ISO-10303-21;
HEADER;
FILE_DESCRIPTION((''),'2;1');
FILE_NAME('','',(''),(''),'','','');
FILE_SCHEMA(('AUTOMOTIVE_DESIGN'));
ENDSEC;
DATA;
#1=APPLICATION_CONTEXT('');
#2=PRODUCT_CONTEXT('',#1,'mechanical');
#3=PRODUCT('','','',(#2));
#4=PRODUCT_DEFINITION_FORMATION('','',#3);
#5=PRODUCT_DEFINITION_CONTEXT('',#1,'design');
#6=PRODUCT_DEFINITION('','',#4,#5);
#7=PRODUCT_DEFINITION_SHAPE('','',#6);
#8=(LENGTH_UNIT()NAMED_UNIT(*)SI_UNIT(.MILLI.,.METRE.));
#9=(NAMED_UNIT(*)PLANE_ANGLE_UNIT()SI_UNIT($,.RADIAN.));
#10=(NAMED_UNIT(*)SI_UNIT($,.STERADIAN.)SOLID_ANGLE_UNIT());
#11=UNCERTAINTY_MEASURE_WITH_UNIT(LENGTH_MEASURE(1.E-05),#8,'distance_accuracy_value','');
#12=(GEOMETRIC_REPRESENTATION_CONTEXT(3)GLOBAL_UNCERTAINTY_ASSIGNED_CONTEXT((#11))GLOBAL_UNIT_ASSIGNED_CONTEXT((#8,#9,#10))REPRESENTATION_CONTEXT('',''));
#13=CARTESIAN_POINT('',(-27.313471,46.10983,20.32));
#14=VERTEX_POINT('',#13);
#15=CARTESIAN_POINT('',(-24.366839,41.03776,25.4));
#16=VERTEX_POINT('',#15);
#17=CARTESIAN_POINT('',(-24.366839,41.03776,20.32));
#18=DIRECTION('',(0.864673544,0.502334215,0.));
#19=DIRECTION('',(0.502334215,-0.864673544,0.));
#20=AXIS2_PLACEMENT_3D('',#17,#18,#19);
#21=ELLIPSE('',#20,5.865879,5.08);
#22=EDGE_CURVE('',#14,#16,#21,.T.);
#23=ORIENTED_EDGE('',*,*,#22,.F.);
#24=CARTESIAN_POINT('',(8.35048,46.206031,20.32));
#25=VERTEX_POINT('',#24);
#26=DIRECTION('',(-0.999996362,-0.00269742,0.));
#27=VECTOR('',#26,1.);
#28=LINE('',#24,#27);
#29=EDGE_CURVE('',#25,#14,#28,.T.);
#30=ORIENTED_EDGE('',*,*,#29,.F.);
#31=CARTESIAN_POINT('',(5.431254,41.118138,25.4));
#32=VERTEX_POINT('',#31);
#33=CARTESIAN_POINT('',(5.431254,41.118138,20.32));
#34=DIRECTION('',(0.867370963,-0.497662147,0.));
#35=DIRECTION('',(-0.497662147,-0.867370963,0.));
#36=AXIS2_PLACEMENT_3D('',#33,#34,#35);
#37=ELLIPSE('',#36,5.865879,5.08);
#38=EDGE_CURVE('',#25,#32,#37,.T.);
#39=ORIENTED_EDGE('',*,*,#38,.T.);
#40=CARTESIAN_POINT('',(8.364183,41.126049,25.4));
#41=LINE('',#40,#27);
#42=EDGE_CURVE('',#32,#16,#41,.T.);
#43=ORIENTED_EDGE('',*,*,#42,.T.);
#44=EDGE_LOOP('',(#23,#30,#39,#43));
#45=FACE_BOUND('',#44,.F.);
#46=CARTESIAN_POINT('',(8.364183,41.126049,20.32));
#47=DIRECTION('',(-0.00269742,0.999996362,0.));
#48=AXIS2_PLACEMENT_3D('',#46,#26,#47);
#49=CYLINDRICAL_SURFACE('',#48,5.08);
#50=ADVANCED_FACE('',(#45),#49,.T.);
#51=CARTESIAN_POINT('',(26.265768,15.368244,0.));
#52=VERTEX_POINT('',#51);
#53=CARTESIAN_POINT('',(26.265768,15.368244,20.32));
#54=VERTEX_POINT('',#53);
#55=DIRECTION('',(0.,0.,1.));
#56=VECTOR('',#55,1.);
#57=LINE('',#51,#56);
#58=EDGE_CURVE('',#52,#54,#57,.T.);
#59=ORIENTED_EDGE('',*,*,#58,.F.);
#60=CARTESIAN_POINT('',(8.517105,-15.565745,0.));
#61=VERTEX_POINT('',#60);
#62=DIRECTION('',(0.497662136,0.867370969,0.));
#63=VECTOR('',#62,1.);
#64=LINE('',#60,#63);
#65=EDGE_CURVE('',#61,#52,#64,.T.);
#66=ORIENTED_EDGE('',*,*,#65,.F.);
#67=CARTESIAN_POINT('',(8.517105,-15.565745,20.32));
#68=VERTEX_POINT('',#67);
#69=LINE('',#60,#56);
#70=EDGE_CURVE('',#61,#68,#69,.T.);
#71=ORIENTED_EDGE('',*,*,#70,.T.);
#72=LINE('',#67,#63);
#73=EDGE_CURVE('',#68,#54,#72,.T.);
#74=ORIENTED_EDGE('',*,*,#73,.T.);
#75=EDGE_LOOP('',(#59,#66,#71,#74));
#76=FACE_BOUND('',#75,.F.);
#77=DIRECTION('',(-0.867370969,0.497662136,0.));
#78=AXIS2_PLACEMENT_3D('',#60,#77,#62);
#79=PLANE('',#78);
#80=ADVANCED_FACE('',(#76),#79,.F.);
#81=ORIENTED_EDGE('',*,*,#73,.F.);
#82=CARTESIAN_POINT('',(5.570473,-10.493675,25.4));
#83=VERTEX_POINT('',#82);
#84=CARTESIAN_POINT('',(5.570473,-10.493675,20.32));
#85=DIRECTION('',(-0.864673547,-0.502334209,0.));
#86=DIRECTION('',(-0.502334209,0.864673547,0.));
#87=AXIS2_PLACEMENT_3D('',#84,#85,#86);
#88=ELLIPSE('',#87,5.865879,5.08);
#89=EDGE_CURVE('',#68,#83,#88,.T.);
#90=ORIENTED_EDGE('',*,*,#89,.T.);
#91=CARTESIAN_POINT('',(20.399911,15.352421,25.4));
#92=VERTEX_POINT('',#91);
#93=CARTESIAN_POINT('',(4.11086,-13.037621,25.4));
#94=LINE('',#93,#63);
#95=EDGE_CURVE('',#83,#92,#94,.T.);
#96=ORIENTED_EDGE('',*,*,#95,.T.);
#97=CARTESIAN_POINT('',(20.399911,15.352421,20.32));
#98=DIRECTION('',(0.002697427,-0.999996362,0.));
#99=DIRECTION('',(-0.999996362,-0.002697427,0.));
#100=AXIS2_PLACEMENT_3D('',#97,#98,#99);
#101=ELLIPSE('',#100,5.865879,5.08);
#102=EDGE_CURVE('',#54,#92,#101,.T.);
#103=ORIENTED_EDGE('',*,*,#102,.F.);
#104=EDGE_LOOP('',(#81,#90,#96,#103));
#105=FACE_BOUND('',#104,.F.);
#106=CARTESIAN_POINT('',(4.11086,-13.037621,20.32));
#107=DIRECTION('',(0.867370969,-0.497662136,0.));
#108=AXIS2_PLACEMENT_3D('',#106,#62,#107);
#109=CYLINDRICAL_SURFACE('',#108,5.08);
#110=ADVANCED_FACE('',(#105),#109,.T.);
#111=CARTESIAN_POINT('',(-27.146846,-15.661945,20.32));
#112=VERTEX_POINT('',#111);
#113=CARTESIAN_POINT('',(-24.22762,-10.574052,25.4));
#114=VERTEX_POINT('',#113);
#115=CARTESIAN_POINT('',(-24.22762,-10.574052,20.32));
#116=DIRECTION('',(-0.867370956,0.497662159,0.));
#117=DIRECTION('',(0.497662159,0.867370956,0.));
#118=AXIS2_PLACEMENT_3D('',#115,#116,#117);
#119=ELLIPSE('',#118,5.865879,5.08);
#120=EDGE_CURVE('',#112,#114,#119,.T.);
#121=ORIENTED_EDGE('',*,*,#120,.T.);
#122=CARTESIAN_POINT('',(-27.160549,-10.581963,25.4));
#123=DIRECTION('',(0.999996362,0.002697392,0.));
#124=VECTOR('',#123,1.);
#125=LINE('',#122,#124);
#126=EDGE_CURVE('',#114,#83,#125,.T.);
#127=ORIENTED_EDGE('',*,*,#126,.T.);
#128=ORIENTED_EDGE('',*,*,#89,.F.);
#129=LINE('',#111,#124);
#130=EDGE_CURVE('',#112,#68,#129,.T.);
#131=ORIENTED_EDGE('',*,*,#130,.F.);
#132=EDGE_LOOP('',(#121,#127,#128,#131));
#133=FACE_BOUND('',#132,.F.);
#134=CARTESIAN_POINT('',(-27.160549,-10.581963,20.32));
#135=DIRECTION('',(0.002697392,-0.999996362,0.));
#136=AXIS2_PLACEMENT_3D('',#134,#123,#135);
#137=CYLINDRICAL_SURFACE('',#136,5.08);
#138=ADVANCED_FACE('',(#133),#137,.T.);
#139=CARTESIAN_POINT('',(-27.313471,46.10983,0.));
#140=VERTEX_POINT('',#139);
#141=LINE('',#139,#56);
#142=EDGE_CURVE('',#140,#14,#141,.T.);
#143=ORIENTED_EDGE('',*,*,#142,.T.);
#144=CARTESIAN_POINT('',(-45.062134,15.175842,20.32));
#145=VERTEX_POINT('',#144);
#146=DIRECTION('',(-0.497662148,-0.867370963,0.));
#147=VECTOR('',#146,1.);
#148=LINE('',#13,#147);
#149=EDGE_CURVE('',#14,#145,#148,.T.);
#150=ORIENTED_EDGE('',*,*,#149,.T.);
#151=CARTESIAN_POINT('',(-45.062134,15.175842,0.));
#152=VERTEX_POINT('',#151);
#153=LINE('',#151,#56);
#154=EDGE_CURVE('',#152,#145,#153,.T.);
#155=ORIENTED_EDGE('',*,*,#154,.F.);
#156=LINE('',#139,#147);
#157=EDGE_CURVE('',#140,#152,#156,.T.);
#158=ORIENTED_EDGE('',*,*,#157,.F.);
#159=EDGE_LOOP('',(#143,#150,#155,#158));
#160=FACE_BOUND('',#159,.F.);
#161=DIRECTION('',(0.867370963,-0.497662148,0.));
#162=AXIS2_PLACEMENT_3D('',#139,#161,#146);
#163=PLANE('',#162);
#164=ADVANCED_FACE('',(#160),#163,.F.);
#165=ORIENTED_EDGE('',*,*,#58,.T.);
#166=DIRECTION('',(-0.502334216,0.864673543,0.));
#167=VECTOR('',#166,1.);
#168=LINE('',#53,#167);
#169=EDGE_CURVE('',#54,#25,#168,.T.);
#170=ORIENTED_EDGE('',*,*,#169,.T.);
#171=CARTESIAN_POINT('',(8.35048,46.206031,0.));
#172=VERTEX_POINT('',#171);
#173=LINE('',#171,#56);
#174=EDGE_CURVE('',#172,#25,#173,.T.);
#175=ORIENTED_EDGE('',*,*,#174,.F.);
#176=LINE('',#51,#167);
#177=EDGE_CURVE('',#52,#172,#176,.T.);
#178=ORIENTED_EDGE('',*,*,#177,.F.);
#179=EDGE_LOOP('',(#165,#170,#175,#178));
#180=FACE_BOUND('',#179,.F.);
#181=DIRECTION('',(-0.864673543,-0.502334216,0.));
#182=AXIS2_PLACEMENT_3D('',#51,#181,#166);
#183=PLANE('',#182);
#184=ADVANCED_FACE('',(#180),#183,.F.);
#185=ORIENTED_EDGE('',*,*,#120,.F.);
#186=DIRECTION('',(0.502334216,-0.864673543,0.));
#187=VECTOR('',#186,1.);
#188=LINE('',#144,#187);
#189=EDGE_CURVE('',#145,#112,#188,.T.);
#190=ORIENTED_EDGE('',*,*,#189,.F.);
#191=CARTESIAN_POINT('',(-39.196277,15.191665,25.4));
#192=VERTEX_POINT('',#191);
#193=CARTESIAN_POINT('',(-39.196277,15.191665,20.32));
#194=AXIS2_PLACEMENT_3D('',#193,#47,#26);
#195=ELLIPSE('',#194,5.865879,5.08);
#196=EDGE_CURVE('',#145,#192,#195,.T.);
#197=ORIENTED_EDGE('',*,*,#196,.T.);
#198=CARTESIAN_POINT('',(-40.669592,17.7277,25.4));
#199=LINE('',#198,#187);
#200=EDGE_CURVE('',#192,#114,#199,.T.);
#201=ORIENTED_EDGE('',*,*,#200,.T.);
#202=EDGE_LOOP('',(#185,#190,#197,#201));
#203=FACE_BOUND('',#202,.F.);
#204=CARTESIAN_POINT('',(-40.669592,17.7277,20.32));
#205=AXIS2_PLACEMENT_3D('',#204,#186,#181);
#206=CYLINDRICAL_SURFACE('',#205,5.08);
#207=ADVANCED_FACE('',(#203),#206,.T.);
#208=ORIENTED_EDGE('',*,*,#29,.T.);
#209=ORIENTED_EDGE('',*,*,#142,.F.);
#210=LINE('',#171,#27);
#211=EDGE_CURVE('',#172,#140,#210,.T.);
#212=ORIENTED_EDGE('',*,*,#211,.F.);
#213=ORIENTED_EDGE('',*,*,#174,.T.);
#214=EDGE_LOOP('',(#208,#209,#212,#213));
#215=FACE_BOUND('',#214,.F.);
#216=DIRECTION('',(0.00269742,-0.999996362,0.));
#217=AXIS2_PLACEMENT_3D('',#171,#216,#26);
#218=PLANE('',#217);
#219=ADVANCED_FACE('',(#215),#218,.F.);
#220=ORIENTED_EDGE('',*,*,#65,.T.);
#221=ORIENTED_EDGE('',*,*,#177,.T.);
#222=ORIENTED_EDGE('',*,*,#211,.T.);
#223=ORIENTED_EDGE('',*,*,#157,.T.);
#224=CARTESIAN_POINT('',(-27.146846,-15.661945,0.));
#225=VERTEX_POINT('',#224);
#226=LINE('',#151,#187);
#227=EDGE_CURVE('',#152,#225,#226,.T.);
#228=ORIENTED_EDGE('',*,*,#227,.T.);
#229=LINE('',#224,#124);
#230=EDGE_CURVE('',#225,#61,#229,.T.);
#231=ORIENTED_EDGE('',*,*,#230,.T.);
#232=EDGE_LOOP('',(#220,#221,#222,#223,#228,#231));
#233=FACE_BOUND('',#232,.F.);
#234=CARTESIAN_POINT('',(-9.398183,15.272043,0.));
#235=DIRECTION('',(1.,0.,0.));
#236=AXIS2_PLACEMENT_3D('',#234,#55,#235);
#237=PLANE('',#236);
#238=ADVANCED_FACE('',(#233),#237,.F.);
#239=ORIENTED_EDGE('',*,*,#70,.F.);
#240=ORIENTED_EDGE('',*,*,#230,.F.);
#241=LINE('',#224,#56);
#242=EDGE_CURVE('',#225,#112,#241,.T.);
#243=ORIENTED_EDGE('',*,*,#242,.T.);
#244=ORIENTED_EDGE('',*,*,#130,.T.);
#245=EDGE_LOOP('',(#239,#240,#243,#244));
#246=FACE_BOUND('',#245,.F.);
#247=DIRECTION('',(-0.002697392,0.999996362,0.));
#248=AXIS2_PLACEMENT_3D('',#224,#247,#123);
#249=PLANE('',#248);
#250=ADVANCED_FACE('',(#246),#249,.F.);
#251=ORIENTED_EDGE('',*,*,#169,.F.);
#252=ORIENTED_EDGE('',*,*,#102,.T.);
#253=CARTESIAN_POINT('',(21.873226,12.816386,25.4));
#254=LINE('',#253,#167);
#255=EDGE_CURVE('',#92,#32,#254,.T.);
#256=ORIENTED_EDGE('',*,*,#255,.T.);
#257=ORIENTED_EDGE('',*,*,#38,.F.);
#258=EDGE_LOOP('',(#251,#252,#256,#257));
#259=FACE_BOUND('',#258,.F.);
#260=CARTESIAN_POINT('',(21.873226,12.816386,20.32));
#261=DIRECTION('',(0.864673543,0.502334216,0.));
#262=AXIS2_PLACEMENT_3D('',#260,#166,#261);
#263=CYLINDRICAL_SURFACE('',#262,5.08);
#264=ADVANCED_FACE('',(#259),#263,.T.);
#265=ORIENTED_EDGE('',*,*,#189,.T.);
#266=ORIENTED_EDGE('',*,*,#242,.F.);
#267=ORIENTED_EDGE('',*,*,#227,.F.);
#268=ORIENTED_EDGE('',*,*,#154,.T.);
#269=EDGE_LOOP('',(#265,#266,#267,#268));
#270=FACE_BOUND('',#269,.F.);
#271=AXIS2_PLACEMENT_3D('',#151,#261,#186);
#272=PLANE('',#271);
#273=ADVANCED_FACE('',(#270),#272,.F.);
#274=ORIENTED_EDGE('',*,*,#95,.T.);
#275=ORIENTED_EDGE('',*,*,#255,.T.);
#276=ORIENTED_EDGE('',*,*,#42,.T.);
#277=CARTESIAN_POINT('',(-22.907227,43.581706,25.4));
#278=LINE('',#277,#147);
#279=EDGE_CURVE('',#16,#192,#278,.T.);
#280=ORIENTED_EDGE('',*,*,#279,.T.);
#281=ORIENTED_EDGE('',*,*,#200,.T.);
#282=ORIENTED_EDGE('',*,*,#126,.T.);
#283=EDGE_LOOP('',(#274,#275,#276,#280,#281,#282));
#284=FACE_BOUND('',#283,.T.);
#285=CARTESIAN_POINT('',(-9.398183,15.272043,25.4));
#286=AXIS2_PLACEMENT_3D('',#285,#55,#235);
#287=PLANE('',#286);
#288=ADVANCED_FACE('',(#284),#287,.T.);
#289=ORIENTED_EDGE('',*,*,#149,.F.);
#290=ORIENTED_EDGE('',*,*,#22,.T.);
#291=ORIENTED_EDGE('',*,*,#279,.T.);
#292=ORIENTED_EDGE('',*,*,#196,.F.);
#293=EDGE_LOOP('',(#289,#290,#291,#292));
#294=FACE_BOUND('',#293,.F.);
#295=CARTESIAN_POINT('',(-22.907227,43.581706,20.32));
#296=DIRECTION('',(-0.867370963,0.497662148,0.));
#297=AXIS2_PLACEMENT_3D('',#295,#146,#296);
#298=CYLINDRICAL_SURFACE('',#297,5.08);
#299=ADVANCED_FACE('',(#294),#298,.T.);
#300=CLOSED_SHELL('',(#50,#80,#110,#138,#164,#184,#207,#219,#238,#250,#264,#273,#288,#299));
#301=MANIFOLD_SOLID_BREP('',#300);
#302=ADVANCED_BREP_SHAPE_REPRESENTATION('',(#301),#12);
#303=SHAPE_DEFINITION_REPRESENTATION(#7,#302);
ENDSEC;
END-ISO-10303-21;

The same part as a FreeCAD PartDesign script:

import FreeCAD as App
import Part
import Sketcher
Q = App.Units.Quantity


def edges_at(feature, points):
    """Names of the edges that pass closest to the given points."""
    edges = feature.Shape.Edges
    near = lambda p: min(range(len(edges)), key=lambda i: edges[i].distToShape(Part.Vertex(*p))[0])
    return sorted({f"Edge{near(p) + 1}" for p in points})

doc = App.newDocument("Part")
body = doc.addObject("PartDesign::Body", "Body")

# Sketch on XY plane
sketch1 = doc.addObject("Sketcher::SketchObject", "Sketch")
body.addObject(sketch1)
sketch1.AttachmentSupport = (doc.XY_Plane, [""])
sketch1.MapMode = "FlatFace"
sketch1.addGeometry(Part.LineSegment(App.Vector(-27.146846, -15.661945, 0), App.Vector(8.517105, -15.565745, 0)), False)
sketch1.addGeometry(Part.LineSegment(App.Vector(8.517105, -15.565745, 0), App.Vector(26.265768, 15.368244, 0)), False)
sketch1.addGeometry(Part.LineSegment(App.Vector(26.265768, 15.368244, 0), App.Vector(8.35048, 46.206031, 0)), False)
sketch1.addGeometry(Part.LineSegment(App.Vector(8.35048, 46.206031, 0), App.Vector(-27.313471, 46.10983, 0)), False)
sketch1.addGeometry(Part.LineSegment(App.Vector(-27.313471, 46.10983, 0), App.Vector(-45.062134, 15.175842, 0)), False)
sketch1.addGeometry(Part.LineSegment(App.Vector(-45.062134, 15.175842, 0), App.Vector(-27.146846, -15.661945, 0)), False)
sketch1.addConstraint(Sketcher.Constraint("Coincident", 0, 2, 1, 1))
sketch1.addConstraint(Sketcher.Constraint("Coincident", 1, 2, 2, 1))
sketch1.addConstraint(Sketcher.Constraint("Coincident", 2, 2, 3, 1))
sketch1.addConstraint(Sketcher.Constraint("Coincident", 3, 2, 4, 1))
sketch1.addConstraint(Sketcher.Constraint("Coincident", 4, 2, 5, 1))
sketch1.addConstraint(Sketcher.Constraint("Coincident", 5, 2, 0, 1))
sketch1.addConstraint(Sketcher.Constraint("Parallel", 0, 3))
sketch1.addConstraint(Sketcher.Constraint("Parallel", 1, 4))
sketch1.addConstraint(Sketcher.Constraint("Parallel", 2, 5))
sketch1.addConstraint(Sketcher.Constraint("Equal", 0, 1))
sketch1.addConstraint(Sketcher.Constraint("Equal", 1, 2))
sketch1.addConstraint(Sketcher.Constraint("Equal", 2, 3))
sketch1.addConstraint(Sketcher.Constraint("DistanceY", 3, 2, 2, 2, Q("0.096201 mm")))
sketch1.addConstraint(Sketcher.Constraint("DistanceX", 4, 2, 1, 2, Q("71.327902 mm")))
sketch1.addConstraint(Sketcher.Constraint("Distance", 0, Q("35.664081 mm")))
sketch1.addConstraint(Sketcher.Constraint("DistanceX", -1, 1, 1, 2, Q("26.265768 mm")))
sketch1.addConstraint(Sketcher.Constraint("DistanceX", -1, 1, 2, 2, Q("8.35048 mm")))
sketch1.addConstraint(Sketcher.Constraint("DistanceY", -1, 1, 2, 2, Q("46.206031 mm")))
pad1 = doc.addObject("PartDesign::Pad", "Pad")
body.addObject(pad1)
pad1.Profile = sketch1
pad1.Length = Q("1 in")
doc.recompute()

fillet = doc.addObject("PartDesign::Fillet", "Fillet")
body.addObject(fillet)
fillet.Base = (pad1, edges_at(pad1, [
    (-36.188, 30.643, 25.4),
    (-9.481, 46.158, 25.4),
    (17.308, 30.787, 25.4),
    (17.391, -0.099, 25.4),
    (-9.315, -15.614, 25.4),
    (-36.104, -0.243, 25.4),
]))
fillet.Radius = Q("0.2 in")

doc.recompute()
